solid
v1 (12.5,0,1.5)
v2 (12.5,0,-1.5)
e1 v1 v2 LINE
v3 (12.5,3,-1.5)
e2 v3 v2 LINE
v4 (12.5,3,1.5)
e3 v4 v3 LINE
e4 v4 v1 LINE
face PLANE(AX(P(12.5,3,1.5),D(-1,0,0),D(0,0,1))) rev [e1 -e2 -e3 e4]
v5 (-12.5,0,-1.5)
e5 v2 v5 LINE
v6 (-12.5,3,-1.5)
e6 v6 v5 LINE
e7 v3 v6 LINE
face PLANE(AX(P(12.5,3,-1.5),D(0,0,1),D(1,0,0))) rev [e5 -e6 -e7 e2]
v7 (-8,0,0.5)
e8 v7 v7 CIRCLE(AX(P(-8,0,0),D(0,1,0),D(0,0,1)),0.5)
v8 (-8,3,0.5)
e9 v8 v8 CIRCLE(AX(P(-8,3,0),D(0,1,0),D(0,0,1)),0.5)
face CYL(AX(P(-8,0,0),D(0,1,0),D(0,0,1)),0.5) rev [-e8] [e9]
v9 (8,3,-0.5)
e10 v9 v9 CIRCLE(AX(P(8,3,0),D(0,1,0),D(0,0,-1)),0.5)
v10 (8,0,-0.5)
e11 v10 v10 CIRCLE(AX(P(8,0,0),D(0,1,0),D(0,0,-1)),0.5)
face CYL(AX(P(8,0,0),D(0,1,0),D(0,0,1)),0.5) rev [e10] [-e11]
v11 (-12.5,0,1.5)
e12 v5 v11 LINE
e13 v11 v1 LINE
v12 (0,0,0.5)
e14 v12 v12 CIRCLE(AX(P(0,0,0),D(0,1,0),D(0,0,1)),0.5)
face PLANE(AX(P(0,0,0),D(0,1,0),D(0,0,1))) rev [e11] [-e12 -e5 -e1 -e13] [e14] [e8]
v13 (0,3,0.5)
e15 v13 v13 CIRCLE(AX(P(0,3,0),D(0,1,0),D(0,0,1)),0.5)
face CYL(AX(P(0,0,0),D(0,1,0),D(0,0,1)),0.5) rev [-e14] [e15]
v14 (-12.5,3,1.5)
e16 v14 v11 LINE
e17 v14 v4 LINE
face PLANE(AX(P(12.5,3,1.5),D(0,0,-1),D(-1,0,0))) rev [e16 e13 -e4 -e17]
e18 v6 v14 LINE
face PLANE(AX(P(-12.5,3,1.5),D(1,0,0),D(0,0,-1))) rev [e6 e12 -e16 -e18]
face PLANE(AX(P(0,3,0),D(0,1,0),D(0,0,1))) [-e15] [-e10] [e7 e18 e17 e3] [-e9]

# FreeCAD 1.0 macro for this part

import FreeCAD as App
import Part
import Sketcher

V = App.Vector

doc = App.newDocument("Part")
body = doc.addObject("PartDesign::Body", "Body")

sketch1 = body.newObject("Sketcher::SketchObject", "Sketch")
sketch1.AttachmentSupport = (doc.getObject("XZ_Plane"), [""])
sketch1.MapMode = "FlatFace"
sketch1.addGeometry(Part.LineSegment(V(-12.5, -1.5, 0), V(-12.5, 1.5, 0)), False)
sketch1.addGeometry(Part.LineSegment(V(-12.5, 1.5, 0), V(12.5, 1.5, 0)), False)
sketch1.addGeometry(Part.LineSegment(V(12.5, 1.5, 0), V(12.5, -1.5, 0)), False)
sketch1.addGeometry(Part.LineSegment(V(12.5, -1.5, 0), V(-12.5, -1.5, 0)), False)
sketch1.addConstraint(Sketcher.Constraint("Coincident", 0, 2, 1, 1))
sketch1.addConstraint(Sketcher.Constraint("Coincident", 1, 2, 2, 1))
sketch1.addConstraint(Sketcher.Constraint("Coincident", 2, 2, 3, 1))
sketch1.addConstraint(Sketcher.Constraint("Coincident", 3, 2, 0, 1))
sketch1.addConstraint(Sketcher.Constraint("Vertical", 0))
sketch1.addConstraint(Sketcher.Constraint("Horizontal", 1))
sketch1.addConstraint(Sketcher.Constraint("Vertical", 2))
sketch1.addConstraint(Sketcher.Constraint("Horizontal", 3))
sketch1.addConstraint(Sketcher.Constraint("Symmetric", 0, 2, 2, 2, -1, 1))
sketch1.addConstraint(Sketcher.Constraint("DistanceX", 1, 1, 1, 2, 25.0))
sketch1.addConstraint(Sketcher.Constraint("DistanceY", 0, 1, 0, 2, 3.0))
pad1 = body.newObject("PartDesign::Pad", "Pad")
pad1.Profile = sketch1
pad1.Length = 3
pad1.Reversed = True

sketch2 = body.newObject("Sketcher::SketchObject", "Sketch001")
sketch2.AttachmentSupport = (doc.getObject("XZ_Plane"), [""])
sketch2.MapMode = "FlatFace"
sketch2.AttachmentOffset = App.Placement(V(0, 0, -3), App.Rotation())
sketch2.addGeometry(Part.Circle(V(-8, 0, 0), V(0, 0, 1), 0.5), False)
sketch2.addGeometry(Part.Circle(V(0, 0, 0), V(0, 0, 1), 0.5), False)
sketch2.addGeometry(Part.Circle(V(8, 0, 0), V(0, 0, 1), 0.5), False)
sketch2.addConstraint(Sketcher.Constraint("Coincident", 1, 3, -1, 1))
sketch2.addConstraint(Sketcher.Constraint("Equal", 0, 1))
sketch2.addConstraint(Sketcher.Constraint("Equal", 1, 2))
sketch2.addConstraint(Sketcher.Constraint("Symmetric", 0, 3, 2, 3, -1, 1))
sketch2.addConstraint(Sketcher.Constraint("PointOnObject", 0, 3, -1))
sketch2.addConstraint(Sketcher.Constraint("Diameter", 0, 1.0))
sketch2.addConstraint(Sketcher.Constraint("DistanceX", 0, 3, -1, 1, 8.0))
pocket1 = body.newObject("PartDesign::Pocket", "Pocket")
pocket1.Profile = sketch2
pocket1.Type = "ThroughAll"
pocket1.Reversed = True

doc.recompute()
